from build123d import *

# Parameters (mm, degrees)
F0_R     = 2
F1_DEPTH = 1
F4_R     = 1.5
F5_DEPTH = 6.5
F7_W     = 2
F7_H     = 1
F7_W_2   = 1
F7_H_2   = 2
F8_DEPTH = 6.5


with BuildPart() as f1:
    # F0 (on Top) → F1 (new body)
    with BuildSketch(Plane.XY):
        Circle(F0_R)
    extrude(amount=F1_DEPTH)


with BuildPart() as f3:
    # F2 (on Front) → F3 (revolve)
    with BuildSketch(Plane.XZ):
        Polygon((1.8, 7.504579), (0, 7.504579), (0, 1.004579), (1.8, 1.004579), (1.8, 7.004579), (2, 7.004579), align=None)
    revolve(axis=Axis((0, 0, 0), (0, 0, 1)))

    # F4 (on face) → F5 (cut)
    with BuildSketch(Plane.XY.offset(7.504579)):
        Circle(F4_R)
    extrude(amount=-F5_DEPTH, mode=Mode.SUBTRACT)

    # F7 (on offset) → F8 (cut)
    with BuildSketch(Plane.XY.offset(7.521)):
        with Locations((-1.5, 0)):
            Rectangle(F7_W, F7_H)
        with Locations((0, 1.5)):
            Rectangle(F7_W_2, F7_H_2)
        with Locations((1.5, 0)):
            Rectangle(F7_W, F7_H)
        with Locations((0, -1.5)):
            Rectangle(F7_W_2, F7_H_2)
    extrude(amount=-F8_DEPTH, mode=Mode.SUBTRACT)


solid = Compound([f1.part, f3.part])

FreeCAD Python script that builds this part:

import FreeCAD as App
import Part
import Sketcher

V = App.Vector


def add_polygon(sketch, points):
    """Adds a closed chain of lines whose ends are joined by coincident constraints."""
    first, n = sketch.GeometryCount, len(points)
    for a, b in zip(points, points[1:] + points[:1]):
        sketch.addGeometry(Part.LineSegment(App.Vector(*a, 0), App.Vector(*b, 0)), False)
    for i in range(n):
        sketch.addConstraint(Sketcher.Constraint("Coincident", first + i, 2, first + (i + 1) % n, 1))

doc = App.newDocument("Part")
params = doc.addObject("Spreadsheet::Sheet", "Params")
for row, (alias, value) in enumerate([
    ("sketch1_diameter", "4 mm"),
    ("pad1_length", "1 mm"),
    ("sketch2_height", "6 mm"),
    ("sketch2_width", "1.8 mm"),
    ("sketch2_width2", "0.2 mm"),
    ("sketch2_height2", "6.5 mm"),
    ("revolution_angle", "360 deg"),
    ("sketch3_diameter", "3 mm"),
    ("pocket1_length", "6.5 mm"),
    ("sketch4_width", "2 mm"),
    ("sketch4_width2", "1 mm"),
    ("pocket2_length", "6.5 mm"),
], start=1):
    params.set(f"A{row}", alias)
    params.set(f"B{row}", "=" + value)
    params.setAlias(f"B{row}", alias)

body = doc.addObject("PartDesign::Body", "Body")

sketch1 = body.newObject("Sketcher::SketchObject", "Sketch")
sketch1.AttachmentSupport = (doc.getObject("XY_Plane"), [""])
sketch1.MapMode = "FlatFace"
sketch1.addGeometry(Part.Circle(V(0, 0, 0), V(0, 0, 1), 2), False)
sketch1.addConstraint(Sketcher.Constraint("Coincident", 0, 3, -1, 1))
sketch1.addConstraint(Sketcher.Constraint("Diameter", 0, 4.0))
sketch1.setExpression("Constraints[1]", "Params.sketch1_diameter")
pad1 = body.newObject("PartDesign::Pad", "Pad")
pad1.Profile = sketch1
pad1.setExpression("Length", "Params.pad1_length")
body2 = doc.addObject("PartDesign::Body", "Body001")

sketch2 = body2.newObject("Sketcher::SketchObject", "Sketch001")
sketch2.AttachmentSupport = (doc.getObject("XZ_Plane001"), [""])
sketch2.MapMode = "FlatFace"
add_polygon(sketch2, [(1.8, 7.504579), (0, 7.504579), (0, 1.004579), (1.8, 1.004579), (1.8, 7.004579), (2, 7.004579)])
sketch2.addConstraint(Sketcher.Constraint("Horizontal", 0))
sketch2.addConstraint(Sketcher.Constraint("Vertical", 1))
sketch2.addConstraint(Sketcher.Constraint("Horizontal", 2))
sketch2.addConstraint(Sketcher.Constraint("Vertical", 3))
sketch2.addConstraint(Sketcher.Constraint("Horizontal", 4))
sketch2.addConstraint(Sketcher.Constraint("PointOnObject", 0, 2, -2))
sketch2.addConstraint(Sketcher.Constraint("Vertical", 3, 2, 5, 2))
sketch2.addConstraint(Sketcher.Constraint("DistanceY", 3, 1, 3, 2, 6.0))
sketch2.addConstraint(Sketcher.Constraint("DistanceX", 0, 2, 0, 1, 1.8))
sketch2.addConstraint(Sketcher.Constraint("DistanceX", 4, 1, 4, 2, 0.2))
sketch2.addConstraint(Sketcher.Constraint("DistanceY", 1, 2, 1, 1, 6.5))
sketch2.addConstraint(Sketcher.Constraint("DistanceY", -1, 1, 0, 2, 7.504579))
sketch2.setExpression("Constraints[13]", "Params.sketch2_height")
sketch2.setExpression("Constraints[14]", "Params.sketch2_width")
sketch2.setExpression("Constraints[15]", "Params.sketch2_width2")
sketch2.setExpression("Constraints[16]", "Params.sketch2_height2")
revolution = body2.newObject("PartDesign::Revolution", "Revolution")
revolution.Profile = sketch2
revolution.ReferenceAxis = (sketch2, ["V_Axis"])
revolution.setExpression("Angle", "Params.revolution_angle")

sketch3 = body2.newObject("Sketcher::SketchObject", "Sketch002")
sketch3.AttachmentSupport = (doc.getObject("XY_Plane001"), [""])
sketch3.MapMode = "FlatFace"
sketch3.AttachmentOffset = App.Placement(V(0, 0, 7.504579), App.Rotation())
sketch3.addGeometry(Part.Circle(V(0, 0, 0), V(0, 0, 1), 1.5), False)
sketch3.addConstraint(Sketcher.Constraint("Coincident", 0, 3, -1, 1))
sketch3.addConstraint(Sketcher.Constraint("Diameter", 0, 3.0))
sketch3.setExpression("Constraints[1]", "Params.sketch3_diameter")
pocket1 = body2.newObject("PartDesign::Pocket", "Pocket")
pocket1.Profile = sketch3
pocket1.setExpression("Length", "Params.pocket1_length")

sketch4 = body2.newObject("Sketcher::SketchObject", "Sketch003")
sketch4.AttachmentSupport = (doc.getObject("XY_Plane001"), [""])
sketch4.MapMode = "FlatFace"
sketch4.AttachmentOffset = App.Placement(V(0, 0, 7.521), App.Rotation())
add_polygon(sketch4, [(-2.5, 0.5), (-2.5, -0.5), (-0.5, -0.5), (-0.5, 0.5)])
add_polygon(sketch4, [(-0.5, 2.5), (-0.5, 0.5), (0.5, 0.5), (0.5, 2.5)])
add_polygon(sketch4, [(0.5, 0.5), (0.5, -0.5), (2.5, -0.5), (2.5, 0.5)])
add_polygon(sketch4, [(-0.5, -0.5), (-0.5, -2.5), (0.5, -2.5), (0.5, -0.5)])
sketch4.addConstraint(Sketcher.Constraint("Vertical", 0))
sketch4.addConstraint(Sketcher.Constraint("Horizontal", 1))
sketch4.addConstraint(Sketcher.Constraint("Vertical", 2))
sketch4.addConstraint(Sketcher.Constraint("Horizontal", 3))
sketch4.addConstraint(Sketcher.Constraint("Vertical", 4))
sketch4.addConstraint(Sketcher.Constraint("Horizontal", 5))
sketch4.addConstraint(Sketcher.Constraint("Vertical", 6))
sketch4.addConstraint(Sketcher.Constraint("Horizontal", 7))
sketch4.addConstraint(Sketcher.Constraint("Vertical", 8))
sketch4.addConstraint(Sketcher.Constraint("Horizontal", 9))
sketch4.addConstraint(Sketcher.Constraint("Vertical", 10))
sketch4.addConstraint(Sketcher.Constraint("Horizontal", 11))
sketch4.addConstraint(Sketcher.Constraint("Vertical", 12))
sketch4.addConstraint(Sketcher.Constraint("Horizontal", 13))
sketch4.addConstraint(Sketcher.Constraint("Vertical", 14))
sketch4.addConstraint(Sketcher.Constraint("Horizontal", 15))
sketch4.addConstraint(Sketcher.Constraint("Coincident", 4, 2, 2, 2))
sketch4.addConstraint(Sketcher.Constraint("Coincident", 11, 2, 5, 2))
sketch4.addConstraint(Sketcher.Constraint("Coincident", 14, 2, 8, 2))
sketch4.addConstraint(Sketcher.Constraint("Coincident", 15, 2, 1, 2))
sketch4.addConstraint(Sketcher.Constraint("Symmetric", 1, 2, 5, 2, -1, 1))
sketch4.addConstraint(Sketcher.Constraint("Equal", 3, 9))
sketch4.addConstraint(Sketcher.Constraint("Equal", 15, 0))
sketch4.addConstraint(Sketcher.Constraint("Equal", 11, 4))
sketch4.addConstraint(Sketcher.Constraint("Equal", 6, 12))
sketch4.addConstraint(Sketcher.Constraint("DistanceX", 1, 1, 1, 2, 2.0))
sketch4.addConstraint(Sketcher.Constraint("DistanceX", 5, 1, 5, 2, 1.0))
sketch4.setExpression("Constraints[41]", "Params.sketch4_width")
sketch4.setExpression("Constraints[42]", "Params.sketch4_width2")
pocket2 = body2.newObject("PartDesign::Pocket", "Pocket001")
pocket2.Profile = sketch4
pocket2.setExpression("Length", "Params.pocket2_length")

doc.recompute()
